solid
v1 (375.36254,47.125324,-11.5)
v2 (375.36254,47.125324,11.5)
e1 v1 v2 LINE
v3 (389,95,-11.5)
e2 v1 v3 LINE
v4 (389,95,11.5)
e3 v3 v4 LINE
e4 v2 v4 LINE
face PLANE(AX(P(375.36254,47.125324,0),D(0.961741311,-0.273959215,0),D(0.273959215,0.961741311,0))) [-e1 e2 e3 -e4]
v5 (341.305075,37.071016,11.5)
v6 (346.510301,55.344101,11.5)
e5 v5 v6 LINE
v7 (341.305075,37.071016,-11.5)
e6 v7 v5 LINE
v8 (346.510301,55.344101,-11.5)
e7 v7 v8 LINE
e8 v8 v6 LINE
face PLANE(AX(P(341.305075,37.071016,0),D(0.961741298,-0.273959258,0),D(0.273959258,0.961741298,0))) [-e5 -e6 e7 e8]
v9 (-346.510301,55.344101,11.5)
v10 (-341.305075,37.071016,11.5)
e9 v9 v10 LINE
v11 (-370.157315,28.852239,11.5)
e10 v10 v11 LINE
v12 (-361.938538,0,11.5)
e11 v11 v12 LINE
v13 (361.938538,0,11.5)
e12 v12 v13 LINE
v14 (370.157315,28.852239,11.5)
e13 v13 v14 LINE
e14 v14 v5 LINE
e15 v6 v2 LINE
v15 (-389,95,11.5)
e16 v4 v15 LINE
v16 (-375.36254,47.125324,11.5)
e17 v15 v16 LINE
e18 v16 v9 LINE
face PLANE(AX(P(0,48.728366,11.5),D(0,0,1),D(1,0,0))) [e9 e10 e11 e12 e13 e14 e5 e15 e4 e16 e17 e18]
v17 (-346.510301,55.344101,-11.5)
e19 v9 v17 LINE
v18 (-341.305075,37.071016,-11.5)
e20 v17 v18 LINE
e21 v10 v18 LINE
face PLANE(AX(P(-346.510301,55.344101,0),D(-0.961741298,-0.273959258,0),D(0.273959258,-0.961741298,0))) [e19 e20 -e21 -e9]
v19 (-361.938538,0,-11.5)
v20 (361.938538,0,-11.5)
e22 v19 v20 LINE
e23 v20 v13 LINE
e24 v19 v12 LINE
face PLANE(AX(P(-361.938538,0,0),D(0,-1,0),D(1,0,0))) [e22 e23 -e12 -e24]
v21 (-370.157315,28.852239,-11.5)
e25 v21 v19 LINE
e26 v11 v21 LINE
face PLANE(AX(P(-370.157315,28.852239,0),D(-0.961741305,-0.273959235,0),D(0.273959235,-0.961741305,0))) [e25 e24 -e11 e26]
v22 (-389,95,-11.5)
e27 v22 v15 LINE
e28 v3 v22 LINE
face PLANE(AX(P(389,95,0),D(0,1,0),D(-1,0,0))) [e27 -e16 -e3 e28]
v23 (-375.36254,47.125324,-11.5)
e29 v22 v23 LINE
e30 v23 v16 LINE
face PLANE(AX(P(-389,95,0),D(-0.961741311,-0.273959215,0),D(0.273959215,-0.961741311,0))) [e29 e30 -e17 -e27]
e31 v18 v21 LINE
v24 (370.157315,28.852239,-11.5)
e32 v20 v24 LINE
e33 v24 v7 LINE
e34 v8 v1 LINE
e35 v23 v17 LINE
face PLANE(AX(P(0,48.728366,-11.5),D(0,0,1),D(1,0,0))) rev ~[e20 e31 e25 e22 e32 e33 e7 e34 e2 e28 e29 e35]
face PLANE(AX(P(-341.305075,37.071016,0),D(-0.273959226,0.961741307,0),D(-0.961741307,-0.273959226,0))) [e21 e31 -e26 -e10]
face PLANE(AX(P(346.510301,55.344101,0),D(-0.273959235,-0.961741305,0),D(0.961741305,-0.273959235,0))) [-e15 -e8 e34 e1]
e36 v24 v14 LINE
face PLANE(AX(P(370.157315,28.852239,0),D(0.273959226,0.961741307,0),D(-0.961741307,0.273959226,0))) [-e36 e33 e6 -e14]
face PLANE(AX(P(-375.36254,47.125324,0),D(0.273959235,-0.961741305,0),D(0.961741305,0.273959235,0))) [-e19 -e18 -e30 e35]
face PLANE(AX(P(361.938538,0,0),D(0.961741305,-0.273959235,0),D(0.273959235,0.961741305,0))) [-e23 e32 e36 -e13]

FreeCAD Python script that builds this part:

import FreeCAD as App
import Part
import Sketcher
from FreeCAD import Vector
Q = App.Units.Quantity


def add_polygon(sketch, points):
    """Adds a closed chain of lines whose ends are joined by coincident constraints."""
    first, n = sketch.GeometryCount, len(points)
    for a, b in zip(points, points[1:] + points[:1]):
        sketch.addGeometry(Part.LineSegment(App.Vector(*a, 0), App.Vector(*b, 0)), False)
    for i in range(n):
        sketch.addConstraint(Sketcher.Constraint("Coincident", first + i, 2, first + (i + 1) % n, 1))

doc = App.newDocument("Part")
body = doc.addObject("PartDesign::Body", "Body")

# Sketch on XY plane
sketch1 = body.newObject("Sketcher::SketchObject", "Sketch")
sketch1.AttachmentSupport = (doc.getObject("XY_Plane"), [""])
sketch1.MapMode = "FlatFace"
add_polygon(sketch1, [(-370.157315, 28.852239), (-361.938538, 0), (361.938538, 0), (370.157315, 28.852239), (341.305075, 37.071016), (346.510301, 55.344101), (375.36254, 47.125324), (389, 95), (-389, 95), (-375.36254, 47.125324), (-346.510301, 55.344101), (-341.305075, 37.071016)])  # lines 0-11
sketch1.addConstraint([
    Sketcher.Constraint("Horizontal", 1),
    Sketcher.Constraint("Horizontal", 7),
    Sketcher.Constraint("Symmetric", 0, 2, 1, 2, -1, 1),
    Sketcher.Constraint("Symmetric", 5, 2, 8, 2, -2),
    Sketcher.Constraint("Symmetric", 4, 2, 9, 2, -2),
    Sketcher.Constraint("Symmetric", 3, 2, 10, 2, -2),
    Sketcher.Constraint("Symmetric", 2, 2, 11, 2, -2),
    Sketcher.Constraint("Perpendicular", 2, 3),
    Sketcher.Constraint("Perpendicular", 3, 4),
    Sketcher.Constraint("Perpendicular", 4, 5),
    Sketcher.Constraint("Perpendicular", 5, 6),
    Sketcher.Constraint("Parallel", 0, 8),
    Sketcher.Constraint("Equal", 2, 3),
    Sketcher.Constraint("Equal", 3, 5),
    Sketcher.Constraint("DistanceX", 7, 2, 7, 1, 778.0),
    Sketcher.Constraint("Distance", 0, 30.0),
    Sketcher.Constraint("Distance", 4, 19.0),
    Sketcher.Constraint("DistanceY", -1, 1, 6, 2, 95.0),
    Sketcher.Constraint("Angle", 0, Q("-74.099999 deg")),
])
pad1 = body.newObject("PartDesign::Pad", "Pad")
pad1.Profile = sketch1
pad1.Length = 23
pad1.Midplane = True

doc.recompute()
